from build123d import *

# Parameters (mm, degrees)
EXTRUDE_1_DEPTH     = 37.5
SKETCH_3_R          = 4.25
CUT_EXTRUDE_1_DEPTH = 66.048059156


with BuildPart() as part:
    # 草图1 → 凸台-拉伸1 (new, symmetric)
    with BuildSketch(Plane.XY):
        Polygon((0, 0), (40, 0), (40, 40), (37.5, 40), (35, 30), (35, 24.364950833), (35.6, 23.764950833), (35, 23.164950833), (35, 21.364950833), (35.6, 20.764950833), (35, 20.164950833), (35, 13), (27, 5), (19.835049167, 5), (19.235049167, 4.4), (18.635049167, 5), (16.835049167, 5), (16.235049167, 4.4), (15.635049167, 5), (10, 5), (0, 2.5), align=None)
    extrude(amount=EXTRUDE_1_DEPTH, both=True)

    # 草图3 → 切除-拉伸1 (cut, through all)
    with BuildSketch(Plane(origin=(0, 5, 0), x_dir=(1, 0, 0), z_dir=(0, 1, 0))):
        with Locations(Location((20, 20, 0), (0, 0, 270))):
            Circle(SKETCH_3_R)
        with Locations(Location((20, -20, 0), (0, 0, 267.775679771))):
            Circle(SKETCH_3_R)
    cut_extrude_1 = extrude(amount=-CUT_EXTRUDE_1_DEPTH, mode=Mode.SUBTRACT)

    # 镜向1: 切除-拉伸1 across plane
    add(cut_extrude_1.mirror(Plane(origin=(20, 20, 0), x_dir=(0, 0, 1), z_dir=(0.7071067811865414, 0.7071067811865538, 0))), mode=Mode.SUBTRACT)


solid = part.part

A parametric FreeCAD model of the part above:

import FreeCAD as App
import Part
import Sketcher
from FreeCAD import Vector
Q = App.Units.Quantity


def add_polygon(sketch, points):
    """Adds a closed chain of lines whose ends are joined by coincident constraints."""
    first, n = sketch.GeometryCount, len(points)
    for a, b in zip(points, points[1:] + points[:1]):
        sketch.addGeometry(Part.LineSegment(App.Vector(*a, 0), App.Vector(*b, 0)), False)
    for i in range(n):
        sketch.addConstraint(Sketcher.Constraint("Coincident", first + i, 2, first + (i + 1) % n, 1))

doc = App.newDocument("Part")
body = doc.addObject("PartDesign::Body", "Body")

# Sketch on XY plane
sketch1 = doc.addObject("Sketcher::SketchObject", "Sketch")
body.addObject(sketch1)
sketch1.AttachmentSupport = (doc.XY_Plane, [""])
sketch1.MapMode = "FlatFace"
add_polygon(sketch1, [(0, 0), (40, 0), (40, 40), (37.5, 40), (35, 30), (35, 24.4), (35.6, 23.8), (35, 23.2), (35, 21.4), (35.6, 20.8), (35, 20.2), (35, 13), (27, 5), (19.8, 5), (19.2, 4.4), (18.6, 5), (16.8, 5), (16.2, 4.4), (15.6, 5), (10, 5), (0, 2.5)])  # lines 0-20
sketch1.addConstraint(Sketcher.Constraint("Horizontal", 0))
sketch1.addConstraint(Sketcher.Constraint("Vertical", 1))
sketch1.addConstraint(Sketcher.Constraint("Horizontal", 2))
sketch1.addConstraint(Sketcher.Constraint("Vertical", 4))
sketch1.addConstraint(Sketcher.Constraint("Vertical", 7))
sketch1.addConstraint(Sketcher.Constraint("Vertical", 10))
sketch1.addConstraint(Sketcher.Constraint("Horizontal", 12))
sketch1.addConstraint(Sketcher.Constraint("Horizontal", 15))
sketch1.addConstraint(Sketcher.Constraint("Horizontal", 18))
sketch1.addConstraint(Sketcher.Constraint("Vertical", 20))
sketch1.addConstraint(Sketcher.Constraint("Coincident", 20, 2, -1, 1))
sketch1.addConstraint(Sketcher.Constraint("Perpendicular", 5, 6))
sketch1.addConstraint(Sketcher.Constraint("Perpendicular", 6, 8))
sketch1.addConstraint(Sketcher.Constraint("Perpendicular", 8, 9))
sketch1.addConstraint(Sketcher.Constraint("Parallel", 9, 11))
sketch1.addConstraint(Sketcher.Constraint("Parallel", 11, 13))
sketch1.addConstraint(Sketcher.Constraint("Perpendicular", 13, 14))
sketch1.addConstraint(Sketcher.Constraint("Perpendicular", 14, 16))
sketch1.addConstraint(Sketcher.Constraint("Perpendicular", 16, 17))
sketch1.addConstraint(Sketcher.Constraint("Horizontal", 12, 2, 14, 2))
sketch1.addConstraint(Sketcher.Constraint("Horizontal", 13, 2, 16, 2))
sketch1.addConstraint(Sketcher.Constraint("Horizontal", 15, 2, 17, 2))
sketch1.addConstraint(Sketcher.Constraint("Vertical", 4, 2, 6, 2))
sketch1.addConstraint(Sketcher.Constraint("Vertical", 5, 2, 8, 2))
sketch1.addConstraint(Sketcher.Constraint("Vertical", 7, 2, 9, 2))
sketch1.addConstraint(Sketcher.Constraint("Equal", 0, 1))
sketch1.addConstraint(Sketcher.Constraint("Equal", 18, 4))
sketch1.addConstraint(Sketcher.Constraint("Equal", 15, 7))
sketch1.addConstraint(Sketcher.Constraint("Equal", 12, 10))
sketch1.addConstraint(Sketcher.Constraint("Equal", 2, 20))
sketch1.addConstraint(Sketcher.Constraint("Equal", 5, 6))
sketch1.addConstraint(Sketcher.Constraint("Equal", 9, 13))
sketch1.addConstraint(Sketcher.Constraint("Equal", 3, 19))
sketch1.addConstraint(Sketcher.Constraint("DistanceX", 0, 1, 0, 2, Q("40 mm")))
sketch1.addConstraint(Sketcher.Constraint("DistanceX", 2, 2, 2, 1, Q("2.5 mm")))
sketch1.addConstraint(Sketcher.Constraint("DistanceX", 15, 2, 15, 1, Q("1.8 mm")))
sketch1.addConstraint(Sketcher.Constraint("DistanceX", -1, 1, 3, 2, Q("35 mm")))
sketch1.addConstraint(Sketcher.Constraint("DistanceY", -1, 1, 3, 2, Q("30 mm")))
sketch1.addConstraint(Sketcher.Constraint("DistanceY", -1, 1, 10, 2, Q("13 mm")))
sketch1.addConstraint(Sketcher.Constraint("DistanceY", 7, 2, 4, 2, Q("3 mm")))
sketch1.addConstraint(Sketcher.Constraint("DistanceX", 12, 2, 12, 1, Q("7.164951 mm")))
pad1 = doc.addObject("PartDesign::Pad", "Pad")
body.addObject(pad1)
pad1.Profile = sketch1
pad1.Length = 75
pad1.Midplane = True

# Sketch on XZ plane
sketch2 = doc.addObject("Sketcher::SketchObject", "Sketch001")
body.addObject(sketch2)
sketch2.AttachmentSupport = (doc.XZ_Plane, [""])
sketch2.MapMode = "FlatFace"
sketch2.AttachmentOffset = App.Placement(Vector(0, 0, -5), App.Rotation())
sketch2.addGeometry(Part.Circle(Vector(20, -20, 0), Vector(0, 0, 1), 4.2), False)
sketch2.addGeometry(Part.Circle(Vector(20, 20, 0), Vector(0, 0, 1), 4.2), False)
sketch2.addConstraint(Sketcher.Constraint("Equal", 0, 1))
sketch2.addConstraint(Sketcher.Constraint("Symmetric", 0, 3, 1, 3, -1))
sketch2.addConstraint(Sketcher.Constraint("Diameter", 0, Q("8.5 mm")))
sketch2.addConstraint(Sketcher.Constraint("DistanceX", -1, 1, 0, 3, Q("20 mm")))
sketch2.addConstraint(Sketcher.Constraint("DistanceY", 0, 3, -1, 1, Q("20 mm")))
pocket1 = doc.addObject("PartDesign::Pocket", "Pocket")
body.addObject(pocket1)
pocket1.Profile = sketch2
pocket1.Type = "ThroughAll"
pocket1.Reversed = True
doc.recompute()

datumplane = doc.addObject("PartDesign::Plane", "DatumPlane")
body.addObject(datumplane)
datumplane.Placement = App.Placement(Vector(20, 20, 0), App.Rotation(Vector(0.707106781, -0.707106781, 0), Vector(0, 0, -1), Vector(0.707106781, 0.707106781, 0), "ZXY"))
mirrored = doc.addObject("PartDesign::Mirrored", "Mirrored")
body.addObject(mirrored)
mirrored.Originals = [pocket1]
mirrored.MirrorPlane = (datumplane, [""])
body.Tip = mirrored

doc.recompute()
